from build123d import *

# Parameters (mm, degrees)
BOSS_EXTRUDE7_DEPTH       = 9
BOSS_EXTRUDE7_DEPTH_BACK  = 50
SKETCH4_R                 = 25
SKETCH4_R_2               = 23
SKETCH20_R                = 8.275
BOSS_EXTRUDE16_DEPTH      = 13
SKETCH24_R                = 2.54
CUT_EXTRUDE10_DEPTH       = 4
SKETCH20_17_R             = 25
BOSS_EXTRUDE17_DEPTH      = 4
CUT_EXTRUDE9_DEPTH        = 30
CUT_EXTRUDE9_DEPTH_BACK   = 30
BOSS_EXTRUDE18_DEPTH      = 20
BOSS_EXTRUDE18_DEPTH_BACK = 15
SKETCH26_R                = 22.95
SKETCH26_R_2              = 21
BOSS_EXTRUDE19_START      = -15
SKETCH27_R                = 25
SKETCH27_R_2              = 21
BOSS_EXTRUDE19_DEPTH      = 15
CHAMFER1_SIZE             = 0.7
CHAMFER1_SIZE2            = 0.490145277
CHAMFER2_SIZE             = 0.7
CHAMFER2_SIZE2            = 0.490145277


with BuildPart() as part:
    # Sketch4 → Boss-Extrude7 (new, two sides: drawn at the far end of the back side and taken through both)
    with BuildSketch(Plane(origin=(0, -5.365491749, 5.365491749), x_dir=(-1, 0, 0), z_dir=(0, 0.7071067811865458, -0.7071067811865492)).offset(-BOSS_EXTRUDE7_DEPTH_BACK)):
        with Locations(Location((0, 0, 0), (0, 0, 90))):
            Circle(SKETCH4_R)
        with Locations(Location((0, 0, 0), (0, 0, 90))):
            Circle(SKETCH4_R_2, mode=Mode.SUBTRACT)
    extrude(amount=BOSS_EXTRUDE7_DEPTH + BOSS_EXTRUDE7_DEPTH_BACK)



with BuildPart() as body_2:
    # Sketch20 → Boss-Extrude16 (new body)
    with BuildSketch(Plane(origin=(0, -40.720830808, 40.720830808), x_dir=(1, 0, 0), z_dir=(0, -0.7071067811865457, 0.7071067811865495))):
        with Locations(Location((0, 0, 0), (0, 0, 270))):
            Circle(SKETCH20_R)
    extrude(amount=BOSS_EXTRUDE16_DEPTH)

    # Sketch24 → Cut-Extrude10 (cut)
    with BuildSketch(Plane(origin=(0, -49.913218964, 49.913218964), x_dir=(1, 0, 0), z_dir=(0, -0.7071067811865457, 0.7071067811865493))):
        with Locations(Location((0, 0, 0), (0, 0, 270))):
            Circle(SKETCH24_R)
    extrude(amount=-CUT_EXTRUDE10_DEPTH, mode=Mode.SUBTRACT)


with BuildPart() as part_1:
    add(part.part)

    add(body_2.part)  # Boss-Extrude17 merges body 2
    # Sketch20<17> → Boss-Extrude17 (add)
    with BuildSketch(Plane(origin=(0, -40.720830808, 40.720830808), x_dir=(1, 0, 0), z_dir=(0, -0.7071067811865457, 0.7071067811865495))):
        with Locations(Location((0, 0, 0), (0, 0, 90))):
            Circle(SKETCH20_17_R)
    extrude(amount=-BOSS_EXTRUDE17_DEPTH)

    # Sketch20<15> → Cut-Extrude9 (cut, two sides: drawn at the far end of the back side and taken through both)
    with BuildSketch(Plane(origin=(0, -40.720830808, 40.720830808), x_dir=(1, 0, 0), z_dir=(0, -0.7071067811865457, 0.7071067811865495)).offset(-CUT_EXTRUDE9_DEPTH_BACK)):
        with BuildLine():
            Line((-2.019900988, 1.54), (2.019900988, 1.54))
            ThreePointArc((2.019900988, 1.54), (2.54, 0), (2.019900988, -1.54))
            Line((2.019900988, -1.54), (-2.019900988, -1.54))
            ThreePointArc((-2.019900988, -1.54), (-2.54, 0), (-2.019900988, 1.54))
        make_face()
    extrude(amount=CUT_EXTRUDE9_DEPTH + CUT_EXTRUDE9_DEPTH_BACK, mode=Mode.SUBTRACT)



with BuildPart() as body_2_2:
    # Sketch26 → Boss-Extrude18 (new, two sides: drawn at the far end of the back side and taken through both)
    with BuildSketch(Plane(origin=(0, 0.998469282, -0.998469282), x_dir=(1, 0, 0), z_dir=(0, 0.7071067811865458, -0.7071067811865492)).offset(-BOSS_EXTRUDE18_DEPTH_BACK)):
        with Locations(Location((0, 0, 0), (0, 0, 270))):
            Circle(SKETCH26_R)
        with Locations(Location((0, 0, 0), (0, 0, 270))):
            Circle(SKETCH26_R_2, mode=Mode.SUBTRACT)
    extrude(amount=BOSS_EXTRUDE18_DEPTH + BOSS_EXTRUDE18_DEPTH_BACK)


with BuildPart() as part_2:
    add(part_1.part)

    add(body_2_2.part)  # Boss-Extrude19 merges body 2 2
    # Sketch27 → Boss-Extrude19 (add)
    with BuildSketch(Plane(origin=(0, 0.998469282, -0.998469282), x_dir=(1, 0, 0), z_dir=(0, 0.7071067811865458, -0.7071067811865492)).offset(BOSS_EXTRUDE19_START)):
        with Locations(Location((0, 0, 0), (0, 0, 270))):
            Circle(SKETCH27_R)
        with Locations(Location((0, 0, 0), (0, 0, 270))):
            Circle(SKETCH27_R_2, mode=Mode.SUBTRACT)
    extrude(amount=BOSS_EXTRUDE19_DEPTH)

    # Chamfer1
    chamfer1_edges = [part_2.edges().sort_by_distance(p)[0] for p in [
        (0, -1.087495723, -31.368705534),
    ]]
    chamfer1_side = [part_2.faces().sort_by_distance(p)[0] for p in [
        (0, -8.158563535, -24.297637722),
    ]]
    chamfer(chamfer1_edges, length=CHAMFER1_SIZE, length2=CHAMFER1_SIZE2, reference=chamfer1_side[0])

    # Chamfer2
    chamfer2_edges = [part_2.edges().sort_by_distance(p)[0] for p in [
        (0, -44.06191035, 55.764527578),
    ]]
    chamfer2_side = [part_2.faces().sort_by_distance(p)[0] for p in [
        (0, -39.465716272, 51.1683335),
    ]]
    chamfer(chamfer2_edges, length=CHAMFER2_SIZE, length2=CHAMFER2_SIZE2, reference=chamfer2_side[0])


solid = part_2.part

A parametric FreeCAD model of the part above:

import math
import FreeCAD as App
import Part
import Sketcher
from FreeCAD import Vector


def edges_at(feature, points):
    """Names of the edges that pass closest to the given points."""
    edges = feature.Shape.Edges
    near = lambda p: min(range(len(edges)), key=lambda i: edges[i].distToShape(Part.Vertex(*p))[0])
    return sorted({f"Edge{near(p) + 1}" for p in points})

doc = App.newDocument("Part")
body = doc.addObject("PartDesign::Body", "Body")

# Sketch on an angled plane
sketch1 = body.newObject("Sketcher::SketchObject", "Sketch")
sketch1.Placement = App.Placement(Vector(0, -5.365492, 5.365492), App.Rotation(Vector(-1, 0, 0), Vector(0, 0.707106781, 0.707106781), Vector(0, 0.707106781, -0.707106781), "ZXY"))
sketch1.addGeometry([
    Part.Circle(Vector(0, 0, 0), Vector(0, 0, 1), 25),
    Part.Circle(Vector(0, 0, 0), Vector(0, 0, 1), 23),
], False)
sketch1.addConstraint([
    Sketcher.Constraint("Coincident", 0, 3, -1, 1),
    Sketcher.Constraint("Coincident", 1, 3, -1, 1),
    Sketcher.Constraint("Diameter", 0, 50.0),
    Sketcher.Constraint("Diameter", 1, 46.0),
])
pad1 = body.newObject("PartDesign::Pad", "Pad")
pad1.Profile = sketch1
pad1.Type = "TwoLengths"
pad1.Length = 9
pad1.Length2 = 50
body2 = doc.addObject("PartDesign::Body", "Body001")

# Sketch on an angled plane
sketch2 = body2.newObject("Sketcher::SketchObject", "Sketch001")
sketch2.Placement = App.Placement(Vector(0, -40.720831, 40.720831), App.Rotation(Vector(1, 0, 0), Vector(0, 0.707106781, 0.707106781), Vector(0, -0.707106781, 0.707106781), "ZXY"))
sketch2.addGeometry(Part.Circle(Vector(0, 0, 0), Vector(0, 0, 1), 8.275), False)
sketch2.addConstraint([
    Sketcher.Constraint("Coincident", 0, 3, -1, 1),
    Sketcher.Constraint("Diameter", 0, 16.55),
])
pad2 = body2.newObject("PartDesign::Pad", "Pad001")
pad2.Profile = sketch2
pad2.Length = 13

# Sketch on an angled plane
sketch3 = body2.newObject("Sketcher::SketchObject", "Sketch002")
sketch3.Placement = App.Placement(Vector(0, -49.913219, 49.913219), App.Rotation(Vector(1, 0, 0), Vector(0, 0.707106781, 0.707106781), Vector(0, -0.707106781, 0.707106781), "ZXY"))
sketch3.addGeometry(Part.Circle(Vector(0, 0, 0), Vector(0, 0, 1), 2.54), False)
sketch3.addConstraint([
    Sketcher.Constraint("Coincident", 0, 3, -1, 1),
    Sketcher.Constraint("Diameter", 0, 5.08),
])
pocket1 = body2.newObject("PartDesign::Pocket", "Pocket")
pocket1.Profile = sketch3
pocket1.Length = 4
body.AllowCompound = True
doc.recompute()

boolean = body.newObject("PartDesign::Boolean", "Boolean")
boolean.Type = "Fuse"
boolean.addObjects([body2])

# Sketch on an angled plane
sketch4 = body.newObject("Sketcher::SketchObject", "Sketch003")
sketch4.Placement = App.Placement(Vector(0, -40.720831, 40.720831), App.Rotation(Vector(1, 0, 0), Vector(0, 0.707106781, 0.707106781), Vector(0, -0.707106781, 0.707106781), "ZXY"))
sketch4.addGeometry(Part.Circle(Vector(0, 0, 0), Vector(0, 0, 1), 25), False)
sketch4.addConstraint([
    Sketcher.Constraint("Coincident", 0, 3, -1, 1),
    Sketcher.Constraint("Diameter", 0, 50.0),
])
pad3 = body.newObject("PartDesign::Pad", "Pad002")
pad3.Profile = sketch4
pad3.Length = 4
pad3.Reversed = True

# Sketch on an angled plane
sketch5 = body.newObject("Sketcher::SketchObject", "Sketch004")
sketch5.Placement = App.Placement(Vector(0, -40.720831, 40.720831), App.Rotation(Vector(1, 0, 0), Vector(0, 0.707106781, 0.707106781), Vector(0, -0.707106781, 0.707106781), "ZXY"))
sketch5.addGeometry([
    Part.LineSegment(Vector(2.019901, 1.54, 0), Vector(-2.019901, 1.54, 0)),
    Part.ArcOfCircle(Part.Circle(Vector(0, 0, 0), Vector(0, 0, 1), 2.54), math.radians(142.67761), math.radians(217.32239)),
    Part.LineSegment(Vector(-2.019901, -1.54, 0), Vector(2.019901, -1.54, 0)),
    Part.ArcOfCircle(Part.Circle(Vector(0, 0, 0), Vector(0, 0, 1), 2.54), math.radians(-37.32239), math.radians(37.32239)),
], False)
sketch5.addConstraint([
    Sketcher.Constraint("Coincident", 0, 2, 1, 1),
    Sketcher.Constraint("Coincident", 1, 2, 2, 1),
    Sketcher.Constraint("Coincident", 2, 2, 3, 1),
    Sketcher.Constraint("Coincident", 3, 2, 0, 1),
    Sketcher.Constraint("Horizontal", 0),
    Sketcher.Constraint("Horizontal", 2),
    Sketcher.Constraint("Coincident", 1, 3, -1, 1),
    Sketcher.Constraint("Coincident", 3, 3, -1, 1),
    Sketcher.Constraint("Equal", 1, 3),
    Sketcher.Constraint("Vertical", 0, 2, 1, 2),
    Sketcher.Constraint("Radius", 1, 2.54),
    Sketcher.Constraint("DistanceY", -1, 1, 0, 2, 1.54),
])
pocket2 = body.newObject("PartDesign::Pocket", "Pocket001")
pocket2.Profile = sketch5
pocket2.Type = "ThroughAll"
pocket2.Midplane = True
body3 = doc.addObject("PartDesign::Body", "Body002")

# Sketch on an angled plane
sketch6 = body3.newObject("Sketcher::SketchObject", "Sketch005")
sketch6.Placement = App.Placement(Vector(0, 0.998469, -0.998469), App.Rotation(Vector(1, 0, 0), Vector(0, -0.707106781, -0.707106781), Vector(0, 0.707106781, -0.707106781), "ZXY"))
sketch6.addGeometry([
    Part.Circle(Vector(0, 0, 0), Vector(0, 0, 1), 22.95),
    Part.Circle(Vector(0, 0, 0), Vector(0, 0, 1), 21),
], False)
sketch6.addConstraint([
    Sketcher.Constraint("Coincident", 0, 3, -1, 1),
    Sketcher.Constraint("Coincident", 1, 3, -1, 1),
    Sketcher.Constraint("Diameter", 1, 42.0),
    Sketcher.Constraint("Diameter", 0, 45.9),
])
pad4 = body3.newObject("PartDesign::Pad", "Pad003")
pad4.Profile = sketch6
pad4.Type = "TwoLengths"
pad4.Length = 20
pad4.Length2 = 15
body.AllowCompound = True
doc.recompute()

boolean2 = body.newObject("PartDesign::Boolean", "Boolean001")
boolean2.Type = "Fuse"
boolean2.addObjects([body3])

# Sketch on an angled plane
sketch7 = body.newObject("Sketcher::SketchObject", "Sketch006")
sketch7.Placement = App.Placement(Vector(0, -9.608132, 9.608132), App.Rotation(Vector(1, 0, 0), Vector(0, -0.707106781, -0.707106781), Vector(0, 0.707106781, -0.707106781), "ZXY"))
sketch7.addGeometry([
    Part.Circle(Vector(0, 0, 0), Vector(0, 0, 1), 25),
    Part.Circle(Vector(0, 0, 0), Vector(0, 0, 1), 21),
], False)
sketch7.addConstraint([
    Sketcher.Constraint("Coincident", 0, 3, -1, 1),
    Sketcher.Constraint("Coincident", 1, 3, -1, 1),
    Sketcher.Constraint("Diameter", 0, 50.0),
    Sketcher.Constraint("Diameter", 1, 42.0),
])
pad5 = body.newObject("PartDesign::Pad", "Pad004")
pad5.Profile = sketch7
pad5.Length = 15
doc.recompute()

chamfer = body.newObject("PartDesign::Chamfer", "Chamfer")
chamfer.Base = (pad5, edges_at(pad5, [(0, -1.087, -31.369)]))
chamfer.ChamferType = "Two distances"
chamfer.Size = 0.7
chamfer.Size2 = 0.490145
doc.recompute()

chamfer2 = body.newObject("PartDesign::Chamfer", "Chamfer001")
chamfer2.Base = (chamfer, edges_at(chamfer, [(0, -44.062, 55.765)]))
chamfer2.ChamferType = "Two distances"
chamfer2.Size = 0.7
chamfer2.Size2 = 0.490145

doc.recompute()
